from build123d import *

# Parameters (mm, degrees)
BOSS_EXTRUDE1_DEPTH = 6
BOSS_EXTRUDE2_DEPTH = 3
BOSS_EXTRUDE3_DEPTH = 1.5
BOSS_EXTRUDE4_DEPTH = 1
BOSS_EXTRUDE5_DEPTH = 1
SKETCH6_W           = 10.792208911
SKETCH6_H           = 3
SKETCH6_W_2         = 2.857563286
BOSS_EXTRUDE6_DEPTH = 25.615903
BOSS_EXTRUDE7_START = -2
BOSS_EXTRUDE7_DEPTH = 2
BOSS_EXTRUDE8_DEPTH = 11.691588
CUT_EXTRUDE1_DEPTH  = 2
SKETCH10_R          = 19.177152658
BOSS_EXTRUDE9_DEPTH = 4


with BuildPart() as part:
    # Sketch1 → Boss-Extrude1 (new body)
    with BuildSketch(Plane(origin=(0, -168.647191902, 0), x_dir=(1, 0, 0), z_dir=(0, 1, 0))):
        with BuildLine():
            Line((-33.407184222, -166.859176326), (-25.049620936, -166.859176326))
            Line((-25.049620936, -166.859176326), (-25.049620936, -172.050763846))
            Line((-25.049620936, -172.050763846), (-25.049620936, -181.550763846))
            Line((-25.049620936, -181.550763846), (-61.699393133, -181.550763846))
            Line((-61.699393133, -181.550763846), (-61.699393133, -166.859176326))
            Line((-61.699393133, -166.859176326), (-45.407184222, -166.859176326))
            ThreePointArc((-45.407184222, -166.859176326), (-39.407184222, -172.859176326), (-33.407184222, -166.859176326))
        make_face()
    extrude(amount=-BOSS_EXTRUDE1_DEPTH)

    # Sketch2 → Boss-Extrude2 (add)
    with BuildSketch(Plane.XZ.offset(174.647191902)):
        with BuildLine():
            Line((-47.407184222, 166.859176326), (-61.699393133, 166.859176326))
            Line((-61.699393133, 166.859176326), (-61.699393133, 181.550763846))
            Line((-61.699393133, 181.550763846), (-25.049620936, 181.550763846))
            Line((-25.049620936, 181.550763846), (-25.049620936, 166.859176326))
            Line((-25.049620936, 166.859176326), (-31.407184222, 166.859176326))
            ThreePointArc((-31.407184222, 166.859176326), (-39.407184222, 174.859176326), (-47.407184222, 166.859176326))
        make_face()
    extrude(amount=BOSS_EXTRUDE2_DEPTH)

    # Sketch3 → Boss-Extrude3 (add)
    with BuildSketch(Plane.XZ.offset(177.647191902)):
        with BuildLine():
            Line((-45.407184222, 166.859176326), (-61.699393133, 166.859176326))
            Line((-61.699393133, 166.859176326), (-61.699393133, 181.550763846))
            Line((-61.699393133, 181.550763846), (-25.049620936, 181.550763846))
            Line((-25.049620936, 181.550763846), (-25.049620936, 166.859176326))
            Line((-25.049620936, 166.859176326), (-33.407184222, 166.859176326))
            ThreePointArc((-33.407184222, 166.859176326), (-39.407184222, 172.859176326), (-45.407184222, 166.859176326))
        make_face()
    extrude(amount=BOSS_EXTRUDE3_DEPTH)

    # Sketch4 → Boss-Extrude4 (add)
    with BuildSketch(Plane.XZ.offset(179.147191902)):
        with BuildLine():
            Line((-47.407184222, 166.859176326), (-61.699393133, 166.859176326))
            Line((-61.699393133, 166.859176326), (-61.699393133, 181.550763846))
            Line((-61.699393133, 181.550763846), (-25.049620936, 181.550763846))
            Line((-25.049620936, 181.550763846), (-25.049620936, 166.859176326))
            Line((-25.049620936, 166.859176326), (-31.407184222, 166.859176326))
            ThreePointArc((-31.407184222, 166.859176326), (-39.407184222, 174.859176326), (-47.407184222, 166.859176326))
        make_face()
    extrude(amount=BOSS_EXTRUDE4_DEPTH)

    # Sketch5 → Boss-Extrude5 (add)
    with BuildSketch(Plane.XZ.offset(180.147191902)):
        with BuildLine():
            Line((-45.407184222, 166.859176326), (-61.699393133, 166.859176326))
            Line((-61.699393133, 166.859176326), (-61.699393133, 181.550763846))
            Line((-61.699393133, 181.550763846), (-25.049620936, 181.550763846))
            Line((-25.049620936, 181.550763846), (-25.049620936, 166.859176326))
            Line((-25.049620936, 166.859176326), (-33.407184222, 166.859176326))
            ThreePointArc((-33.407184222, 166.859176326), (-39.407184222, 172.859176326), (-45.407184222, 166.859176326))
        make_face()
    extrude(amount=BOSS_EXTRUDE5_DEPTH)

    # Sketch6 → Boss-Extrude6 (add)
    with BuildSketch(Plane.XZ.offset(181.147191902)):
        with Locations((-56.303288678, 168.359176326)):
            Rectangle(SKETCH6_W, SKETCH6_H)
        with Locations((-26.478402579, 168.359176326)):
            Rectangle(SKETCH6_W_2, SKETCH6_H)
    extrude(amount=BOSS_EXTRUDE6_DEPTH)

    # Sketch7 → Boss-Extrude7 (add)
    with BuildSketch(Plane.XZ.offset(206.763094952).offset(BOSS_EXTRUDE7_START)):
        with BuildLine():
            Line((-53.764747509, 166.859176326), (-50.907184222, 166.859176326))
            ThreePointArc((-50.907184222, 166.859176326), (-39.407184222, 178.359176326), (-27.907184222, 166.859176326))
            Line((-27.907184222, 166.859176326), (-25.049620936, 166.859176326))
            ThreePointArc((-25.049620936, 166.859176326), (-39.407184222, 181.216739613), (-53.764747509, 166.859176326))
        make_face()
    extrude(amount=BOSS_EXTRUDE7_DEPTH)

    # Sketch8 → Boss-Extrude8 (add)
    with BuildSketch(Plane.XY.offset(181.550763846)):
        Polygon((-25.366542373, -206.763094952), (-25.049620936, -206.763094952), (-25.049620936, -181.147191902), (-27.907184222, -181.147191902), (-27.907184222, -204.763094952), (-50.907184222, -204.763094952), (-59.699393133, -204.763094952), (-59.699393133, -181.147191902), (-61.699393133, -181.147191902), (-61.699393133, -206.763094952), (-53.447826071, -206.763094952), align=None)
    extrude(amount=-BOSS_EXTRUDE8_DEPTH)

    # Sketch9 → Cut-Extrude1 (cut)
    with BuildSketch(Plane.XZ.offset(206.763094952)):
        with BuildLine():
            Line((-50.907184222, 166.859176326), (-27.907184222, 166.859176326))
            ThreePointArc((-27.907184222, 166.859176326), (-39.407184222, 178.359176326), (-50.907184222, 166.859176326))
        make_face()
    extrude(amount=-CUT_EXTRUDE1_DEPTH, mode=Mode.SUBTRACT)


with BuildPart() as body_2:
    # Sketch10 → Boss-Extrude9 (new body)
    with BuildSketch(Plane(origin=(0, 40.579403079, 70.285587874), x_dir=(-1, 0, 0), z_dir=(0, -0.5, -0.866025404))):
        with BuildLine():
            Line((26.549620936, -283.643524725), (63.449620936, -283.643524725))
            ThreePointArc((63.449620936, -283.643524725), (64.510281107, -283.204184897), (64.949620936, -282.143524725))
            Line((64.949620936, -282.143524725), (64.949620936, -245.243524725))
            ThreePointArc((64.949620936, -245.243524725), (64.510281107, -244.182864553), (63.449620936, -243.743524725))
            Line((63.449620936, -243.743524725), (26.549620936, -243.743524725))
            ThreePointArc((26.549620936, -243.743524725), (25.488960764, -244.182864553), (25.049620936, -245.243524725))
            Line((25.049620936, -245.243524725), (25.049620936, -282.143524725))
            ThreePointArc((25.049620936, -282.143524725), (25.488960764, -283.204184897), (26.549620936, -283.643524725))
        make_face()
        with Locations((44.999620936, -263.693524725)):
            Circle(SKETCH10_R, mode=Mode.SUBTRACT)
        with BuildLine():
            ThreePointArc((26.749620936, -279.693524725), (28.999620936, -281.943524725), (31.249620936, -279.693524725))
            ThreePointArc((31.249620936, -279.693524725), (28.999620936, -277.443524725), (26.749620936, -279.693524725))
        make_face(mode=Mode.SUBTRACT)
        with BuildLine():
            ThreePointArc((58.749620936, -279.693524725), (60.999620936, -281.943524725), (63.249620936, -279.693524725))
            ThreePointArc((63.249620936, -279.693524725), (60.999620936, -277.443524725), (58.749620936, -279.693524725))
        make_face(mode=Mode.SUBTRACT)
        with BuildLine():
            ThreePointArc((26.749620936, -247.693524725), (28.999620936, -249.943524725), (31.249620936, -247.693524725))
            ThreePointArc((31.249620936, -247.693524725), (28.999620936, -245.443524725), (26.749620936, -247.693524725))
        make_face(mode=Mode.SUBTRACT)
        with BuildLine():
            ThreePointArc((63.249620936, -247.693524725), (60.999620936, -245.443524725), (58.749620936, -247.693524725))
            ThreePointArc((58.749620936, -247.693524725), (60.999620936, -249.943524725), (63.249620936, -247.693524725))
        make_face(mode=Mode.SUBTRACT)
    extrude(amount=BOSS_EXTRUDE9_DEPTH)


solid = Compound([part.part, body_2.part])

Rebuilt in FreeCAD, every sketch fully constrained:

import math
import FreeCAD as App
import Part
import Sketcher

V = App.Vector
Q = App.Units.Quantity


def add_polygon(sketch, points):
    """Adds a closed chain of lines whose ends are joined by coincident constraints."""
    first, n = sketch.GeometryCount, len(points)
    for a, b in zip(points, points[1:] + points[:1]):
        sketch.addGeometry(Part.LineSegment(App.Vector(*a, 0), App.Vector(*b, 0)), False)
    for i in range(n):
        sketch.addConstraint(Sketcher.Constraint("Coincident", first + i, 2, first + (i + 1) % n, 1))

doc = App.newDocument("Part")
body = doc.addObject("PartDesign::Body", "Body")

# Sketch on XZ plane
sketch1 = doc.addObject("Sketcher::SketchObject", "Sketch")
body.addObject(sketch1)
sketch1.AttachmentSupport = (doc.XZ_Plane, [""])
sketch1.MapMode = "FlatFace"
sketch1.AttachmentOffset = App.Placement(V(0, 0, 168.647192), App.Rotation())
sketch1.addGeometry([
    Part.LineSegment(V(-25, 167, 0), V(-33, 167, 0)),  # 0
    Part.ArcOfCircle(Part.Circle(V(-39, 167, 0), V(0, 0, 1), 6), math.radians(0), math.radians(180)),  # 1
    Part.LineSegment(V(-45, 167, 0), V(-62, 167, 0)),  # 2
    Part.LineSegment(V(-62, 167, 0), V(-62, 182, 0)),  # 3
    Part.LineSegment(V(-62, 182, 0), V(-25, 182, 0)),  # 4
    Part.LineSegment(V(-25, 182, 0), V(-25, 167, 0)),  # 5
], False)
sketch1.addConstraint([
    Sketcher.Constraint("Coincident", 0, 2, 1, 1),
    Sketcher.Constraint("Coincident", 1, 2, 2, 1),
    Sketcher.Constraint("Coincident", 2, 2, 3, 1),
    Sketcher.Constraint("Coincident", 3, 2, 4, 1),
    Sketcher.Constraint("Coincident", 4, 2, 5, 1),
    Sketcher.Constraint("Coincident", 5, 2, 0, 1),
    Sketcher.Constraint("Horizontal", 0),
    Sketcher.Constraint("Horizontal", 2),
    Sketcher.Constraint("Vertical", 3),
    Sketcher.Constraint("Horizontal", 4),
    Sketcher.Constraint("Vertical", 5),
    Sketcher.Constraint("Horizontal", 1, 3, 0, 2),
    Sketcher.Constraint("Horizontal", 0, 2, 1, 2),
    Sketcher.Constraint("Radius", 1, Q("6 mm")),
    Sketcher.Constraint("DistanceX", 2, 2, 2, 1, Q("16.292209 mm")),
    Sketcher.Constraint("DistanceX", 0, 2, 0, 1, Q("8.357563 mm")),
    Sketcher.Constraint("DistanceY", 3, 1, 3, 2, Q("14.691588 mm")),
    Sketcher.Constraint("DistanceX", 4, 2, -1, 1, Q("25.049621 mm")),
    Sketcher.Constraint("DistanceY", -1, 1, 1, 3, Q("166.859176 mm")),
])
pad1 = doc.addObject("PartDesign::Pad", "Pad")
body.addObject(pad1)
pad1.Profile = sketch1
pad1.Length = 6

# Sketch on XZ plane
sketch2 = doc.addObject("Sketcher::SketchObject", "Sketch001")
body.addObject(sketch2)
sketch2.AttachmentSupport = (doc.XZ_Plane, [""])
sketch2.MapMode = "FlatFace"
sketch2.AttachmentOffset = App.Placement(V(0, 0, 174.647192), App.Rotation())
sketch2.addGeometry([
    Part.LineSegment(V(-62, 167, 0), V(-47, 167, 0)),  # 0
    Part.ArcOfCircle(Part.Circle(V(-39, 167, 0), V(0, 0, 1), 8), math.radians(0), math.radians(180)),  # 1
    Part.LineSegment(V(-31, 167, 0), V(-25, 167, 0)),  # 2
    Part.LineSegment(V(-25, 167, 0), V(-25, 182, 0)),  # 3
    Part.LineSegment(V(-25, 182, 0), V(-62, 182, 0)),  # 4
    Part.LineSegment(V(-62, 182, 0), V(-62, 167, 0)),  # 5
], False)
sketch2.addConstraint([
    Sketcher.Constraint("Coincident", 0, 2, 1, 2),
    Sketcher.Constraint("Coincident", 1, 1, 2, 1),
    Sketcher.Constraint("Coincident", 2, 2, 3, 1),
    Sketcher.Constraint("Coincident", 3, 2, 4, 1),
    Sketcher.Constraint("Coincident", 4, 2, 5, 1),
    Sketcher.Constraint("Coincident", 5, 2, 0, 1),
    Sketcher.Constraint("Horizontal", 0),
    Sketcher.Constraint("Horizontal", 2),
    Sketcher.Constraint("Vertical", 3),
    Sketcher.Constraint("Horizontal", 4),
    Sketcher.Constraint("Vertical", 5),
    Sketcher.Constraint("Horizontal", 1, 3, 0, 2),
    Sketcher.Constraint("Horizontal", 0, 2, 1, 1),
    Sketcher.Constraint("Radius", 1, Q("8 mm")),
    Sketcher.Constraint("DistanceX", 0, 1, 0, 2, Q("14.292209 mm")),
    Sketcher.Constraint("DistanceX", 2, 1, 2, 2, Q("6.357563 mm")),
    Sketcher.Constraint("DistanceY", 3, 1, 3, 2, Q("14.691588 mm")),
    Sketcher.Constraint("DistanceX", 2, 2, -1, 1, Q("25.049621 mm")),
    Sketcher.Constraint("DistanceY", -1, 1, 1, 3, Q("166.859176 mm")),
])
pad2 = doc.addObject("PartDesign::Pad", "Pad001")
body.addObject(pad2)
pad2.Profile = sketch2
pad2.Length = 3

# Sketch on XZ plane
sketch3 = doc.addObject("Sketcher::SketchObject", "Sketch002")
body.addObject(sketch3)
sketch3.AttachmentSupport = (doc.XZ_Plane, [""])
sketch3.MapMode = "FlatFace"
sketch3.AttachmentOffset = App.Placement(V(0, 0, 177.647192), App.Rotation())
sketch3.addGeometry([
    Part.LineSegment(V(-62, 167, 0), V(-45, 167, 0)),  # 0
    Part.ArcOfCircle(Part.Circle(V(-39, 167, 0), V(0, 0, 1), 6), math.radians(0), math.radians(180)),  # 1
    Part.LineSegment(V(-33, 167, 0), V(-25, 167, 0)),  # 2
    Part.LineSegment(V(-25, 167, 0), V(-25, 182, 0)),  # 3
    Part.LineSegment(V(-25, 182, 0), V(-62, 182, 0)),  # 4
    Part.LineSegment(V(-62, 182, 0), V(-62, 167, 0)),  # 5
], False)
sketch3.addConstraint([
    Sketcher.Constraint("Coincident", 0, 2, 1, 2),
    Sketcher.Constraint("Coincident", 1, 1, 2, 1),
    Sketcher.Constraint("Coincident", 2, 2, 3, 1),
    Sketcher.Constraint("Coincident", 3, 2, 4, 1),
    Sketcher.Constraint("Coincident", 4, 2, 5, 1),
    Sketcher.Constraint("Coincident", 5, 2, 0, 1),
    Sketcher.Constraint("Horizontal", 0),
    Sketcher.Constraint("Horizontal", 2),
    Sketcher.Constraint("Vertical", 3),
    Sketcher.Constraint("Horizontal", 4),
    Sketcher.Constraint("Vertical", 5),
    Sketcher.Constraint("Horizontal", 1, 3, 0, 2),
    Sketcher.Constraint("Horizontal", 0, 2, 1, 1),
    Sketcher.Constraint("Radius", 1, Q("6 mm")),
    Sketcher.Constraint("DistanceX", 0, 1, 0, 2, Q("16.292209 mm")),
    Sketcher.Constraint("DistanceX", 2, 1, 2, 2, Q("8.357563 mm")),
    Sketcher.Constraint("DistanceY", 3, 1, 3, 2, Q("14.691588 mm")),
    Sketcher.Constraint("DistanceX", 2, 2, -1, 1, Q("25.049621 mm")),
    Sketcher.Constraint("DistanceY", -1, 1, 1, 3, Q("166.859176 mm")),
])
pad3 = doc.addObject("PartDesign::Pad", "Pad002")
body.addObject(pad3)
pad3.Profile = sketch3
pad3.Length = 1.5

# Sketch on XZ plane
sketch4 = doc.addObject("Sketcher::SketchObject", "Sketch003")
body.addObject(sketch4)
sketch4.AttachmentSupport = (doc.XZ_Plane, [""])
sketch4.MapMode = "FlatFace"
sketch4.AttachmentOffset = App.Placement(V(0, 0, 179.147192), App.Rotation())
sketch4.addGeometry([
    Part.LineSegment(V(-62, 167, 0), V(-47, 167, 0)),  # 0
    Part.ArcOfCircle(Part.Circle(V(-39, 167, 0), V(0, 0, 1), 8), math.radians(0), math.radians(180)),  # 1
    Part.LineSegment(V(-31, 167, 0), V(-25, 167, 0)),  # 2
    Part.LineSegment(V(-25, 167, 0), V(-25, 182, 0)),  # 3
    Part.LineSegment(V(-25, 182, 0), V(-62, 182, 0)),  # 4
    Part.LineSegment(V(-62, 182, 0), V(-62, 167, 0)),  # 5
], False)
sketch4.addConstraint([
    Sketcher.Constraint("Coincident", 0, 2, 1, 2),
    Sketcher.Constraint("Coincident", 1, 1, 2, 1),
    Sketcher.Constraint("Coincident", 2, 2, 3, 1),
    Sketcher.Constraint("Coincident", 3, 2, 4, 1),
    Sketcher.Constraint("Coincident", 4, 2, 5, 1),
    Sketcher.Constraint("Coincident", 5, 2, 0, 1),
    Sketcher.Constraint("Horizontal", 0),
    Sketcher.Constraint("Horizontal", 2),
    Sketcher.Constraint("Vertical", 3),
    Sketcher.Constraint("Horizontal", 4),
    Sketcher.Constraint("Vertical", 5),
    Sketcher.Constraint("Horizontal", 1, 3, 0, 2),
    Sketcher.Constraint("Horizontal", 0, 2, 1, 1),
    Sketcher.Constraint("Radius", 1, Q("8 mm")),
    Sketcher.Constraint("DistanceX", 0, 1, 0, 2, Q("14.292209 mm")),
    Sketcher.Constraint("DistanceX", 2, 1, 2, 2, Q("6.357563 mm")),
    Sketcher.Constraint("DistanceY", 3, 1, 3, 2, Q("14.691588 mm")),
    Sketcher.Constraint("DistanceX", 2, 2, -1, 1, Q("25.049621 mm")),
    Sketcher.Constraint("DistanceY", -1, 1, 1, 3, Q("166.859176 mm")),
])
pad4 = doc.addObject("PartDesign::Pad", "Pad003")
body.addObject(pad4)
pad4.Profile = sketch4
pad4.Length = 1

# Sketch on XZ plane
sketch5 = doc.addObject("Sketcher::SketchObject", "Sketch004")
body.addObject(sketch5)
sketch5.AttachmentSupport = (doc.XZ_Plane, [""])
sketch5.MapMode = "FlatFace"
sketch5.AttachmentOffset = App.Placement(V(0, 0, 180.147192), App.Rotation())
sketch5.addGeometry([
    Part.LineSegment(V(-62, 167, 0), V(-45, 167, 0)),  # 0
    Part.ArcOfCircle(Part.Circle(V(-39, 167, 0), V(0, 0, 1), 6), math.radians(0), math.radians(180)),  # 1
    Part.LineSegment(V(-33, 167, 0), V(-25, 167, 0)),  # 2
    Part.LineSegment(V(-25, 167, 0), V(-25, 182, 0)),  # 3
    Part.LineSegment(V(-25, 182, 0), V(-62, 182, 0)),  # 4
    Part.LineSegment(V(-62, 182, 0), V(-62, 167, 0)),  # 5
], False)
sketch5.addConstraint([
    Sketcher.Constraint("Coincident", 0, 2, 1, 2),
    Sketcher.Constraint("Coincident", 1, 1, 2, 1),
    Sketcher.Constraint("Coincident", 2, 2, 3, 1),
    Sketcher.Constraint("Coincident", 3, 2, 4, 1),
    Sketcher.Constraint("Coincident", 4, 2, 5, 1),
    Sketcher.Constraint("Coincident", 5, 2, 0, 1),
    Sketcher.Constraint("Horizontal", 0),
    Sketcher.Constraint("Horizontal", 2),
    Sketcher.Constraint("Vertical", 3),
    Sketcher.Constraint("Horizontal", 4),
    Sketcher.Constraint("Vertical", 5),
    Sketcher.Constraint("Horizontal", 1, 3, 0, 2),
    Sketcher.Constraint("Horizontal", 0, 2, 1, 1),
    Sketcher.Constraint("Radius", 1, Q("6 mm")),
    Sketcher.Constraint("DistanceX", 0, 1, 0, 2, Q("16.292209 mm")),
    Sketcher.Constraint("DistanceX", 2, 1, 2, 2, Q("8.357563 mm")),
    Sketcher.Constraint("DistanceY", 3, 1, 3, 2, Q("14.691588 mm")),
    Sketcher.Constraint("DistanceX", 2, 2, -1, 1, Q("25.049621 mm")),
    Sketcher.Constraint("DistanceY", -1, 1, 1, 3, Q("166.859176 mm")),
])
pad5 = doc.addObject("PartDesign::Pad", "Pad004")
body.addObject(pad5)
pad5.Profile = sketch5
pad5.Length = 1

# Sketch on XZ plane
sketch6 = doc.addObject("Sketcher::SketchObject", "Sketch005")
body.addObject(sketch6)
sketch6.AttachmentSupport = (doc.XZ_Plane, [""])
sketch6.MapMode = "FlatFace"
sketch6.AttachmentOffset = App.Placement(V(0, 0, 181.147192), App.Rotation())
add_polygon(sketch6, [(-61.7, 169.9), (-61.7, 166.9), (-50.9, 166.9), (-50.9, 169.9)])  # lines 0-3
add_polygon(sketch6, [(-27.9, 169.9), (-27.9, 166.9), (-25, 166.9), (-25, 169.9)])  # lines 4-7
sketch6.addConstraint([
    Sketcher.Constraint("Vertical", 0),
    Sketcher.Constraint("Horizontal", 1),
    Sketcher.Constraint("Vertical", 2),
    Sketcher.Constraint("Horizontal", 3),
    Sketcher.Constraint("Vertical", 4),
    Sketcher.Constraint("Horizontal", 5),
    Sketcher.Constraint("Vertical", 6),
    Sketcher.Constraint("Horizontal", 7),
    Sketcher.Constraint("Horizontal", 1, 2, 4, 2),
    Sketcher.Constraint("Horizontal", 3, 2, 6, 2),
    Sketcher.Constraint("DistanceY", 0, 2, 0, 1, Q("3 mm")),
    Sketcher.Constraint("DistanceX", 1, 2, 4, 2, Q("23 mm")),
    Sketcher.Constraint("DistanceX", 1, 1, 1, 2, Q("10.792209 mm")),
    Sketcher.Constraint("DistanceX", 5, 1, 5, 2, Q("2.857563 mm")),
    Sketcher.Constraint("DistanceX", 5, 2, -1, 1, Q("25.049621 mm")),
    Sketcher.Constraint("DistanceY", -1, 1, 0, 2, Q("166.859176 mm")),
])
pad6 = doc.addObject("PartDesign::Pad", "Pad005")
body.addObject(pad6)
pad6.Profile = sketch6
pad6.Length = 25.615903

# Sketch on XZ plane
sketch7 = doc.addObject("Sketcher::SketchObject", "Sketch006")
body.addObject(sketch7)
sketch7.AttachmentSupport = (doc.XZ_Plane, [""])
sketch7.MapMode = "FlatFace"
sketch7.AttachmentOffset = App.Placement(V(0, 0, 204.763095), App.Rotation())
sketch7.addGeometry([
    Part.LineSegment(V(-53.8, 166.9, 0), V(-50.9, 166.9, 0)),
    Part.ArcOfCircle(Part.Circle(V(-39.4, 166.9, 0), V(0, 0, 1), 11.5), math.radians(0), math.radians(180)),
    Part.LineSegment(V(-27.9, 166.9, 0), V(-25, 166.9, 0)),
    Part.ArcOfCircle(Part.Circle(V(-39.4, 166.9, 0), V(0, 0, 1), 14.4), math.radians(0), math.radians(180)),
], False)
sketch7.addConstraint([
    Sketcher.Constraint("Coincident", 0, 2, 1, 2),
    Sketcher.Constraint("Coincident", 1, 1, 2, 1),
    Sketcher.Constraint("Coincident", 2, 2, 3, 1),
    Sketcher.Constraint("Coincident", 3, 2, 0, 1),
    Sketcher.Constraint("Horizontal", 0),
    Sketcher.Constraint("Horizontal", 2),
    Sketcher.Constraint("Coincident", 3, 3, 1, 3),
    Sketcher.Constraint("Horizontal", 3, 3, 0, 2),
    Sketcher.Constraint("Horizontal", 0, 2, 1, 1),
    Sketcher.Constraint("Radius", 1, Q("11.5 mm")),
    Sketcher.Constraint("Radius", 3, Q("14.357563 mm")),
    Sketcher.Constraint("DistanceX", 2, 2, -1, 1, Q("25.049621 mm")),
    Sketcher.Constraint("DistanceY", -1, 1, 1, 3, Q("166.859176 mm")),
])
pad7 = doc.addObject("PartDesign::Pad", "Pad006")
body.addObject(pad7)
pad7.Profile = sketch7
pad7.Length = 2

# Sketch on XY plane
sketch8 = doc.addObject("Sketcher::SketchObject", "Sketch007")
body.addObject(sketch8)
sketch8.AttachmentSupport = (doc.XY_Plane, [""])
sketch8.MapMode = "FlatFace"
sketch8.AttachmentOffset = App.Placement(V(0, 0, 181.550764), App.Rotation())
add_polygon(sketch8, [(-25, -206.8), (-25, -181.1), (-27.9, -181.1), (-27.9, -204.8), (-59.7, -204.8), (-59.7, -181.1), (-61.7, -181.1), (-61.7, -206.8)])  # lines 0-7
sketch8.addConstraint([
    Sketcher.Constraint("Vertical", 0),
    Sketcher.Constraint("Horizontal", 1),
    Sketcher.Constraint("Vertical", 2),
    Sketcher.Constraint("Horizontal", 3),
    Sketcher.Constraint("Vertical", 4),
    Sketcher.Constraint("Horizontal", 5),
    Sketcher.Constraint("Vertical", 6),
    Sketcher.Constraint("Horizontal", 7),
    Sketcher.Constraint("Horizontal", 1, 2, 4, 2),
    Sketcher.Constraint("DistanceX", 5, 2, 5, 1, Q("2 mm")),
    Sketcher.Constraint("DistanceY", 6, 2, 3, 2, Q("2 mm")),
    Sketcher.Constraint("DistanceX", 3, 2, 3, 1, Q("31.792209 mm")),
    Sketcher.Constraint("DistanceX", 1, 2, 1, 1, Q("2.857563 mm")),
    Sketcher.Constraint("DistanceY", 0, 1, 0, 2, Q("25.615903 mm")),
    Sketcher.Constraint("DistanceX", 0, 2, -1, 1, Q("25.049621 mm")),
    Sketcher.Constraint("DistanceY", 0, 2, -1, 1, Q("181.147192 mm")),
])
pad8 = doc.addObject("PartDesign::Pad", "Pad007")
body.addObject(pad8)
pad8.Profile = sketch8
pad8.Length = 11.691588
pad8.Reversed = True

# Sketch on XZ plane
sketch9 = doc.addObject("Sketcher::SketchObject", "Sketch008")
body.addObject(sketch9)
sketch9.AttachmentSupport = (doc.XZ_Plane, [""])
sketch9.MapMode = "FlatFace"
sketch9.AttachmentOffset = App.Placement(V(0, 0, 206.763095), App.Rotation())
sketch9.addGeometry([
    Part.LineSegment(V(-51, 167, 0), V(-28, 167, 0)),
    Part.ArcOfCircle(Part.Circle(V(-39, 167, 0), V(0, 0, 1), 12), math.radians(0), math.radians(180)),
], False)
sketch9.addConstraint([
    Sketcher.Constraint("Coincident", 0, 1, 1, 2),
    Sketcher.Constraint("Coincident", 1, 1, 0, 2),
    Sketcher.Constraint("Horizontal", 0),
    Sketcher.Constraint("Horizontal", 1, 3, 0, 1),
    Sketcher.Constraint("Radius", 1, Q("11.5 mm")),
    Sketcher.Constraint("DistanceX", 1, 3, -1, 1, Q("39.407184 mm")),
    Sketcher.Constraint("DistanceY", -1, 1, 1, 3, Q("166.859176 mm")),
])
pocket1 = doc.addObject("PartDesign::Pocket", "Pocket")
body.addObject(pocket1)
pocket1.Profile = sketch9
pocket1.Length = 2
body2 = doc.addObject("PartDesign::Body", "Body001")

# Sketch on an angled plane
sketch10 = doc.addObject("Sketcher::SketchObject", "Sketch009")
body2.addObject(sketch10)
sketch10.Placement = App.Placement(V(0, 40.579403, 70.285588), App.Rotation(V(-1, 0, 0), V(0, 0.866025404, -0.5), V(0, -0.5, -0.866025404), "ZXY"))
sketch10.addGeometry([
    Part.LineSegment(V(26.5, -283.6, 0), V(63.4, -283.6, 0)),  # 0
    Part.ArcOfCircle(Part.Circle(V(63.4, -282.1, 0), V(0, 0, 1), 1.5), math.radians(-90), math.radians(0)),  # 1
    Part.LineSegment(V(64.9, -282.1, 0), V(64.9, -245.2, 0)),  # 2
    Part.ArcOfCircle(Part.Circle(V(63.4, -245.2, 0), V(0, 0, 1), 1.5), math.radians(0), math.radians(90)),  # 3
    Part.LineSegment(V(63.4, -243.7, 0), V(26.5, -243.7, 0)),  # 4
    Part.ArcOfCircle(Part.Circle(V(26.5, -245.2, 0), V(0, 0, 1), 1.5), math.radians(90), math.radians(180)),  # 5
    Part.LineSegment(V(25, -245.2, 0), V(25, -282.1, 0)),  # 6
    Part.ArcOfCircle(Part.Circle(V(26.5, -282.1, 0), V(0, 0, 1), 1.5), math.radians(180), math.radians(270)),  # 7
    Part.Circle(V(29, -279.7, 0), V(0, 0, 1), 2.2),  # 8
    Part.Circle(V(61, -279.7, 0), V(0, 0, 1), 2.2),  # 9
    Part.Circle(V(29, -247.7, 0), V(0, 0, 1), 2.2),  # 10
    Part.Circle(V(45, -263.7, 0), V(0, 0, 1), 19.2),  # 11
    Part.Circle(V(61, -247.7, 0), V(0, 0, 1), 2.2),  # 12
], False)
sketch10.addConstraint([
    Sketcher.Constraint("Tangent", 0, 2, 1, 1),
    Sketcher.Constraint("Tangent", 1, 2, 2, 1),
    Sketcher.Constraint("Tangent", 2, 2, 3, 1),
    Sketcher.Constraint("Tangent", 3, 2, 4, 1),
    Sketcher.Constraint("Tangent", 4, 2, 5, 1),
    Sketcher.Constraint("Tangent", 5, 2, 6, 1),
    Sketcher.Constraint("Tangent", 6, 2, 7, 1),
    Sketcher.Constraint("Tangent", 7, 2, 0, 1),
    Sketcher.Constraint("Horizontal", 0),
    Sketcher.Constraint("Vertical", 2),
    Sketcher.Constraint("Horizontal", 4),
    Sketcher.Constraint("Vertical", 6),
    Sketcher.Constraint("Equal", 1, 3),
    Sketcher.Constraint("Equal", 3, 5),
    Sketcher.Constraint("Equal", 5, 7),
    Sketcher.Constraint("Equal", 8, 9),
    Sketcher.Constraint("Equal", 9, 10),
    Sketcher.Constraint("Equal", 10, 12),
    Sketcher.Constraint("Horizontal", 8, 3, 9, 3),
    Sketcher.Constraint("Horizontal", 10, 3, 12, 3),
    Sketcher.Constraint("Vertical", 8, 3, 10, 3),
    Sketcher.Constraint("Vertical", 9, 3, 12, 3),
    Sketcher.Constraint("Equal", 4, 2),
    Sketcher.Constraint("Diameter", 8, Q("4.5 mm")),
    Sketcher.Constraint("Radius", 1, Q("1.5 mm")),
    Sketcher.Constraint("DistanceX", 0, 1, 0, 2, Q("36.9 mm")),
    Sketcher.Constraint("DistanceX", 8, 3, 9, 3, Q("32 mm")),
    Sketcher.Constraint("DistanceY", 8, 3, 10, 3, Q("32 mm")),
    Sketcher.Constraint("DistanceX", 8, 3, 11, 3, Q("16 mm")),
    Sketcher.Constraint("DistanceY", 8, 3, 11, 3, Q("16 mm")),
    Sketcher.Constraint("DistanceX", 7, 3, 8, 3, Q("2.45 mm")),
    Sketcher.Constraint("DistanceY", 7, 3, 8, 3, Q("2.45 mm")),
    Sketcher.Constraint("Diameter", 11, Q("38.354305 mm")),
    Sketcher.Constraint("DistanceX", -1, 1, 1, 3, Q("63.449621 mm")),
    Sketcher.Constraint("DistanceY", 1, 3, -1, 1, Q("282.143525 mm")),
])
pad9 = doc.addObject("PartDesign::Pad", "Pad008")
body2.addObject(pad9)
pad9.Profile = sketch10
pad9.Length = 4

doc.recompute()
